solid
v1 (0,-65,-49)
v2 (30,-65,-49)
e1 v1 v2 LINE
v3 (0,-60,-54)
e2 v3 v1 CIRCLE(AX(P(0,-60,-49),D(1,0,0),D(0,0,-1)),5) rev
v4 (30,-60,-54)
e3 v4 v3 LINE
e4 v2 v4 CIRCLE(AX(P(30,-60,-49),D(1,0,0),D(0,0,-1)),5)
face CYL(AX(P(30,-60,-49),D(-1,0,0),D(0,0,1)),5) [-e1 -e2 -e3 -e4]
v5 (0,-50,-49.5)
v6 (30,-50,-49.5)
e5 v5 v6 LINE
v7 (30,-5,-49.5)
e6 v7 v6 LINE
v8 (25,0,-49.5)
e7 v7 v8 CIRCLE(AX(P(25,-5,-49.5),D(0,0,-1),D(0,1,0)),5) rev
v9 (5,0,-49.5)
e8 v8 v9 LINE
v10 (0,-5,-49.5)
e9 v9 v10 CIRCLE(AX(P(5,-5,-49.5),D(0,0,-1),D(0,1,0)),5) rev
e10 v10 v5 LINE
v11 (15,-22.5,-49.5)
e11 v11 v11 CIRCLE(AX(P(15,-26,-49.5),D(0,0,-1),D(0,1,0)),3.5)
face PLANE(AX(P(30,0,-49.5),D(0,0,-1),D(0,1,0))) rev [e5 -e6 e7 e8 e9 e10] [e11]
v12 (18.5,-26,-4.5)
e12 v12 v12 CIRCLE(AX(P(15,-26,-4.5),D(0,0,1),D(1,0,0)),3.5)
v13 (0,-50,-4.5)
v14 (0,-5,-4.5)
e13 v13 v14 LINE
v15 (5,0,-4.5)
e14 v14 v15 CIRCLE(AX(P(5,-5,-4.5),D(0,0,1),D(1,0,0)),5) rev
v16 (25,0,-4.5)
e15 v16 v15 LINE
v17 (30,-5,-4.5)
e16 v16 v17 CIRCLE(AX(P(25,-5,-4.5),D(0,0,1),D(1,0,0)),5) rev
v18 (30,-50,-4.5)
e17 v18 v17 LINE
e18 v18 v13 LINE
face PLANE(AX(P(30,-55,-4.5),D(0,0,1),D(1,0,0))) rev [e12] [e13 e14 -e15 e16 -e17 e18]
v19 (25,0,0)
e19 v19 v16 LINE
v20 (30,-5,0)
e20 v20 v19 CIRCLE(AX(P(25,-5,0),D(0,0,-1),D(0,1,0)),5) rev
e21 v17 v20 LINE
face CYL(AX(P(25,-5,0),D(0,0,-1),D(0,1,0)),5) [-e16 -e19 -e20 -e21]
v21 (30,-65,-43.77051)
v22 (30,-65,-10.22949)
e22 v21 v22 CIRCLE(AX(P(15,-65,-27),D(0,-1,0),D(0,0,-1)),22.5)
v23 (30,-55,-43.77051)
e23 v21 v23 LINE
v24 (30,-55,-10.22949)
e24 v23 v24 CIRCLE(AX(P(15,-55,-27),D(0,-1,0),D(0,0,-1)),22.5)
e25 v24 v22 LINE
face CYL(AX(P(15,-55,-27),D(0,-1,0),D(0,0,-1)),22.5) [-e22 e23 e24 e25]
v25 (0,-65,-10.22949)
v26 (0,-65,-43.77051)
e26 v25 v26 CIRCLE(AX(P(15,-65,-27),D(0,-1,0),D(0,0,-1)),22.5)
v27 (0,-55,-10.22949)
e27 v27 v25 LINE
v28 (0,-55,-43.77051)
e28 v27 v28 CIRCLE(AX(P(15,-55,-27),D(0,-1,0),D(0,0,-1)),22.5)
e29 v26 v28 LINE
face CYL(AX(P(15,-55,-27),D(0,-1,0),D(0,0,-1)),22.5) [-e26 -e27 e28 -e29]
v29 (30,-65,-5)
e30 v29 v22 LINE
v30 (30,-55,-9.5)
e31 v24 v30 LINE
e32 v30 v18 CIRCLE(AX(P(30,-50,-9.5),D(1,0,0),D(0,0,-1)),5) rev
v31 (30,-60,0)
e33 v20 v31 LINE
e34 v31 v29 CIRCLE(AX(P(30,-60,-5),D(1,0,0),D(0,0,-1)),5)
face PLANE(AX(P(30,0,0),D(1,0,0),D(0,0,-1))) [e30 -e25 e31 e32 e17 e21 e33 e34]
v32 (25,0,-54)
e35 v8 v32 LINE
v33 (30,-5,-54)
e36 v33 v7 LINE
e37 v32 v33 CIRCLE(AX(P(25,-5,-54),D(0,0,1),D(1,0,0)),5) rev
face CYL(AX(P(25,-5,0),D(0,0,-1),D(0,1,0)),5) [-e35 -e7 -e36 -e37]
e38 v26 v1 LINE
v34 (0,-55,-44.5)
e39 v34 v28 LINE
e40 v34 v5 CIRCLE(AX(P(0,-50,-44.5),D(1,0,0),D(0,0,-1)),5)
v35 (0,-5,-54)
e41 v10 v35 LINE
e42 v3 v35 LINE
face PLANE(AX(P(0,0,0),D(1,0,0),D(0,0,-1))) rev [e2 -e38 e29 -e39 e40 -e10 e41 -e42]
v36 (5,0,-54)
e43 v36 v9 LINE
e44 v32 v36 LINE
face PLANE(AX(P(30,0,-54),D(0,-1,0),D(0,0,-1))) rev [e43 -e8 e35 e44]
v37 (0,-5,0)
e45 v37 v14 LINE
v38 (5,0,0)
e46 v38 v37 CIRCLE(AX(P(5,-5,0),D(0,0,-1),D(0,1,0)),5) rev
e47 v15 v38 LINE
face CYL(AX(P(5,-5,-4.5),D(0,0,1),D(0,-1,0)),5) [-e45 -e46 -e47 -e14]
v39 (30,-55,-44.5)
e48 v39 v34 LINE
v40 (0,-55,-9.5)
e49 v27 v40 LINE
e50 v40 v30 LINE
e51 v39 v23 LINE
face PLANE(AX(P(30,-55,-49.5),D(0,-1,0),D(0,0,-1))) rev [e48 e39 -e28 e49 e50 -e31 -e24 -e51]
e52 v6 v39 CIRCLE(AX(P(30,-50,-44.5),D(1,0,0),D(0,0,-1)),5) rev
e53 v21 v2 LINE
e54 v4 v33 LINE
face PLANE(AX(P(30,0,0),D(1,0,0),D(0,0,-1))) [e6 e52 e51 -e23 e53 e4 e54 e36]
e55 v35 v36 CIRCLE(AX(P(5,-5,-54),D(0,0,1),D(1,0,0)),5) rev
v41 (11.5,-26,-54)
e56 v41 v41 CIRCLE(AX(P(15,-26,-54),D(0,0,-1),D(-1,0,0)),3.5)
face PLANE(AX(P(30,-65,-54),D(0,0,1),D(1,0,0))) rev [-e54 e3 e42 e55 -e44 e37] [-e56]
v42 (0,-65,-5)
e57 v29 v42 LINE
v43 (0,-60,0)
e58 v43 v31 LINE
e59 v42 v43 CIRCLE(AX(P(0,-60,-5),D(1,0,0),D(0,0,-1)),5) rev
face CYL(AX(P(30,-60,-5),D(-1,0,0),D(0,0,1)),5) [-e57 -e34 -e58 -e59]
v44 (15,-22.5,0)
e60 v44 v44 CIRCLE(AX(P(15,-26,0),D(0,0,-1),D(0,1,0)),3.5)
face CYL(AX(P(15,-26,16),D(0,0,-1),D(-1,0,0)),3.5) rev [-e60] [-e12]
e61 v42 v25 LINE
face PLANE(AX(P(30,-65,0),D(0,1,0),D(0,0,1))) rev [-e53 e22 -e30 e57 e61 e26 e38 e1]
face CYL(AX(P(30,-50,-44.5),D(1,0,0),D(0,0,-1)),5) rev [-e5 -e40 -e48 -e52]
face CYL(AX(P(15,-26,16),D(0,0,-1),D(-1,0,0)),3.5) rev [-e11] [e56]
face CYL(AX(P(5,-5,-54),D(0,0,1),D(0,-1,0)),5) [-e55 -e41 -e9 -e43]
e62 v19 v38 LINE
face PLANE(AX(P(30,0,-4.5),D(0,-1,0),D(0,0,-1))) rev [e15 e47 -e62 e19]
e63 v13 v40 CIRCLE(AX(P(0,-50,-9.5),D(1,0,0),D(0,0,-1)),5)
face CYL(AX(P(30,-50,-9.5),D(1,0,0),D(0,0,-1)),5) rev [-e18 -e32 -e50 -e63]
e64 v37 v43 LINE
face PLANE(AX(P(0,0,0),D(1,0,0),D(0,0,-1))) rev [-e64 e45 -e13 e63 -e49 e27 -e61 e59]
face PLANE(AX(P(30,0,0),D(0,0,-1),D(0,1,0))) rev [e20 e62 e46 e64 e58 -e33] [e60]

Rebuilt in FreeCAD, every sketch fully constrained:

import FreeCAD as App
import Part
import Sketcher
from FreeCAD import Vector


def edges_at(feature, points):
    """Names of the edges that pass closest to the given points."""
    edges = feature.Shape.Edges
    near = lambda p: min(range(len(edges)), key=lambda i: edges[i].distToShape(Part.Vertex(*p))[0])
    return sorted({f"Edge{near(p) + 1}" for p in points})


def add_polygon(sketch, points):
    """Adds a closed chain of lines whose ends are joined by coincident constraints."""
    first, n = sketch.GeometryCount, len(points)
    for a, b in zip(points, points[1:] + points[:1]):
        sketch.addGeometry(Part.LineSegment(App.Vector(*a, 0), App.Vector(*b, 0)), False)
    for i in range(n):
        sketch.addConstraint(Sketcher.Constraint("Coincident", first + i, 2, first + (i + 1) % n, 1))

doc = App.newDocument("Part")
body = doc.addObject("PartDesign::Body", "Body")

# Sketch on YZ plane
sketch1 = doc.addObject("Sketcher::SketchObject", "Sketch")
body.addObject(sketch1)
sketch1.AttachmentSupport = (doc.YZ_Plane, [""])
sketch1.MapMode = "FlatFace"
add_polygon(sketch1, [(0, 0), (-65, 0), (-65, -54), (0, -54), (0, -49.5), (-55, -49.5), (-55, -4.5), (0, -4.5)])  # lines 0-7
sketch1.addConstraint([
    Sketcher.Constraint("Horizontal", 0),
    Sketcher.Constraint("Vertical", 1),
    Sketcher.Constraint("Horizontal", 2),
    Sketcher.Constraint("Vertical", 3),
    Sketcher.Constraint("Horizontal", 4),
    Sketcher.Constraint("Vertical", 5),
    Sketcher.Constraint("Horizontal", 6),
    Sketcher.Constraint("Vertical", 7),
    Sketcher.Constraint("Coincident", 7, 2, -1, 1),
    Sketcher.Constraint("PointOnObject", 2, 2, -2),
    Sketcher.Constraint("Equal", 3, 7),
    Sketcher.Constraint("DistanceX", 0, 2, 0, 1, 65.0),
    Sketcher.Constraint("DistanceX", 4, 2, 4, 1, 55.0),
    Sketcher.Constraint("DistanceY", 1, 2, 1, 1, 54.0),
    Sketcher.Constraint("DistanceY", 5, 1, 5, 2, 45.0),
])
pad1 = doc.addObject("PartDesign::Pad", "Pad")
body.addObject(pad1)
pad1.Profile = sketch1
pad1.Length = 30

# Sketch on XZ plane
sketch2 = doc.addObject("Sketcher::SketchObject", "Sketch001")
body.addObject(sketch2)
sketch2.AttachmentSupport = (doc.XZ_Plane, [""])
sketch2.MapMode = "FlatFace"
sketch2.AttachmentOffset = App.Placement(Vector(0, 0, 65), App.Rotation())
sketch2.addGeometry(Part.Circle(Vector(15, -27, 0), Vector(0, 0, 1), 22), False)
sketch2.addConstraint([
    Sketcher.Constraint("Diameter", 0, 45.0),
    Sketcher.Constraint("DistanceX", -1, 1, 0, 3, 15.0),
    Sketcher.Constraint("DistanceY", 0, 3, -1, 1, 27.0),
])
pad2 = doc.addObject("PartDesign::Pad", "Pad001")
body.addObject(pad2)
pad2.Profile = sketch2
pad2.Length = 10
pad2.Reversed = True
doc.recompute()

fillet = doc.addObject("PartDesign::Fillet", "Fillet")
body.addObject(fillet)
fillet.Base = (pad2, edges_at(pad2, [
    (0, 0, -2.25),
    (15, -55, -4.5),
    (15, -55, -49.5),
    (15, -65, -54),
    (15, -65, 0),
    (30, 0, -51.75),
    (30, 0, -2.25),
    (0, 0, -51.75),
]))
fillet.Radius = 5

# Sketch on XY plane
sketch3 = doc.addObject("Sketcher::SketchObject", "Sketch002")
body.addObject(sketch3)
sketch3.AttachmentSupport = (doc.XY_Plane, [""])
sketch3.MapMode = "FlatFace"
sketch3.AttachmentOffset = App.Placement(Vector(0, 0, -54), App.Rotation())
sketch3.addGeometry(Part.Circle(Vector(15, -26, 0), Vector(0, 0, 1), 3.5), False)
sketch3.addConstraint([
    Sketcher.Constraint("Diameter", 0, 7.0),
    Sketcher.Constraint("DistanceX", -1, 1, 0, 3, 15.0),
    Sketcher.Constraint("DistanceY", 0, 3, -1, 1, 26.0),
])
pocket1 = doc.addObject("PartDesign::Pocket", "Pocket")
body.addObject(pocket1)
pocket1.Profile = sketch3
pocket1.Length = 70
pocket1.Reversed = True

doc.recompute()
